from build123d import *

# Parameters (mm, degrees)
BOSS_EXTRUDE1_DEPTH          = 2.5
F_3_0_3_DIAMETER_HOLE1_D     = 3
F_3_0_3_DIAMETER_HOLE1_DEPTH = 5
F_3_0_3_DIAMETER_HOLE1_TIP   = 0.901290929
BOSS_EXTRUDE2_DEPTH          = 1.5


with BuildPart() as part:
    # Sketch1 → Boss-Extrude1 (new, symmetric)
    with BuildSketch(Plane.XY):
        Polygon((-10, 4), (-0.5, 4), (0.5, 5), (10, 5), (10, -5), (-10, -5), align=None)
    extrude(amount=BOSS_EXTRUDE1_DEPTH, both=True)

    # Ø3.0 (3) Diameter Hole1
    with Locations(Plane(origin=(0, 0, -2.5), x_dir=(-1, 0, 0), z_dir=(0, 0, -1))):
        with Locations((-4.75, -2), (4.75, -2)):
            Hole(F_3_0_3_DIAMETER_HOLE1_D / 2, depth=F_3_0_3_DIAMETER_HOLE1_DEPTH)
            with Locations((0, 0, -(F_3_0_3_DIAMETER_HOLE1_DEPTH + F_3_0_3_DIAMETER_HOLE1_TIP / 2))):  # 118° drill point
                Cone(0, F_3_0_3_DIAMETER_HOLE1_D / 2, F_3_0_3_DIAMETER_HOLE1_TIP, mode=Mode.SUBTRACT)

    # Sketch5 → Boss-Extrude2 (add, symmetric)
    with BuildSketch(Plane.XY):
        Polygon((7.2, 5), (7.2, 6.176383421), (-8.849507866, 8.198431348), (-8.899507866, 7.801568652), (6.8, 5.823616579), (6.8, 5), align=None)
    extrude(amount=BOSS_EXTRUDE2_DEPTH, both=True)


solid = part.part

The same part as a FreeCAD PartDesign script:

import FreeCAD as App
import Part
import Sketcher
Q = App.Units.Quantity


def add_polygon(sketch, points):
    """Adds a closed chain of lines whose ends are joined by coincident constraints."""
    first, n = sketch.GeometryCount, len(points)
    for a, b in zip(points, points[1:] + points[:1]):
        sketch.addGeometry(Part.LineSegment(App.Vector(*a, 0), App.Vector(*b, 0)), False)
    for i in range(n):
        sketch.addConstraint(Sketcher.Constraint("Coincident", first + i, 2, first + (i + 1) % n, 1))

doc = App.newDocument("Part")
params = doc.addObject("Spreadsheet::Sheet", "Params")
for row, (alias, value) in enumerate([
    ("sketch1_width", "20 mm"),
    ("sketch1_height", "9 mm"),
    ("sketch1_height2", "10 mm"),
    ("pad1_length", "5 mm"),
    ("sketch2_diameter", "3 mm"),
    ("hole_diameter", "3 mm"),
    ("hole_depth", "5 mm"),
    ("sketch3_width", "0.4 mm"),
    ("sketch3_length", "0.4 mm"),
    ("pad2_length", "3 mm"),
], start=1):
    params.set(f"A{row}", alias)
    params.set(f"B{row}", "=" + value)
    params.setAlias(f"B{row}", alias)

body = doc.addObject("PartDesign::Body", "Body")

# Sketch on XY plane
sketch1 = body.newObject("Sketcher::SketchObject", "Sketch")
sketch1.AttachmentSupport = (doc.getObject("XY_Plane"), [""])
sketch1.MapMode = "FlatFace"
add_polygon(sketch1, [(-0.5, 4), (-10, 4), (-10, -5), (10, -5), (10, 5), (0.5, 5)])  # lines 0-5
sketch1.addConstraint([
    Sketcher.Constraint("Horizontal", 0),
    Sketcher.Constraint("Vertical", 1),
    Sketcher.Constraint("Horizontal", 2),
    Sketcher.Constraint("Vertical", 3),
    Sketcher.Constraint("Horizontal", 4),
    Sketcher.Constraint("Symmetric", 1, 2, 3, 2, -1, 1),
    Sketcher.Constraint("Equal", 0, 4),
    Sketcher.Constraint("DistanceX", 2, 1, 2, 2, 20.0),
    Sketcher.Constraint("DistanceY", 1, 2, 1, 1, 9.0),
    Sketcher.Constraint("DistanceY", 3, 1, 3, 2, 10.0),
    Sketcher.Constraint("Angle", 5, Q("-135 deg")),
])
sketch1.setExpression("Constraints[13]", "Params.sketch1_width")
sketch1.setExpression("Constraints[14]", "Params.sketch1_height")
sketch1.setExpression("Constraints[15]", "Params.sketch1_height2")
pad1 = body.newObject("PartDesign::Pad", "Pad")
pad1.Profile = sketch1
pad1.setExpression("Length", "Params.pad1_length")
pad1.Midplane = True

# Sketch on XY plane
sketch2 = body.newObject("Sketcher::SketchObject", "Sketch001")
sketch2.AttachmentSupport = (doc.getObject("XY_Plane"), [""])
sketch2.MapMode = "FlatFace"
sketch2.AttachmentOffset = App.Placement(App.Vector(0, 0, -2.5), App.Rotation())
sketch2.addGeometry([
    Part.Circle(App.Vector(4.8, -2, 0), App.Vector(0, 0, 1), 1.5),
    Part.Circle(App.Vector(-4.8, -2, 0), App.Vector(0, 0, 1), 1.5),
], False)
sketch2.addConstraint([
    Sketcher.Constraint("Equal", 0, 1),
    Sketcher.Constraint("Symmetric", 0, 3, 1, 3, -2),
    Sketcher.Constraint("Diameter", 0, 3.0),
    Sketcher.Constraint("DistanceY", 0, 3, -1, 1, 2.0),
    Sketcher.Constraint("DistanceX", 1, 3, 0, 3, 9.5),
])
sketch2.setExpression("Constraints[2]", "Params.sketch2_diameter")
doc.recompute()
hole = body.newObject("PartDesign::Hole", "Hole")
hole.Profile = sketch2
hole.ThreadType = "None"
hole.setExpression("Diameter", "Params.hole_diameter")
hole.DepthType = "Dimension"
hole.setExpression("Depth", "Params.hole_depth")
hole.DrillPoint = "Angled"
hole.DrillPointAngle = 118
hole.Reversed = True

# Sketch on XY plane
sketch3 = body.newObject("Sketcher::SketchObject", "Sketch002")
sketch3.AttachmentSupport = (doc.getObject("XY_Plane"), [""])
sketch3.MapMode = "FlatFace"
add_polygon(sketch3, [(7.2, 5), (7.2, 6.18), (-8.85, 8.2), (-8.9, 7.8), (6.8, 5.82), (6.8, 5)])  # lines 0-5
sketch3.addConstraint([
    Sketcher.Constraint("Vertical", 0),
    Sketcher.Constraint("Vertical", 4),
    Sketcher.Constraint("Horizontal", 5),
    Sketcher.Constraint("Perpendicular", 1, 2),
    Sketcher.Constraint("Perpendicular", 2, 3),
    Sketcher.Constraint("DistanceX", 5, 1, 5, 2, 0.4),
    Sketcher.Constraint("DistanceY", -1, 1, 4, 2, 5.0),
    Sketcher.Constraint("Distance", 2, 0.4),
    Sketcher.Constraint("DistanceX", -1, 1, 0, 2, 7.2),
    Sketcher.Constraint("DistanceX", 2, 2, 1, 2, 0.05),
    Sketcher.Constraint("DistanceY", 0, 1, 0, 2, 1.176383),
    Sketcher.Constraint("DistanceY", -1, 1, 1, 2, 8.198431),
])
sketch3.setExpression("Constraints[11]", "Params.sketch3_width")
sketch3.setExpression("Constraints[13]", "Params.sketch3_length")
pad2 = body.newObject("PartDesign::Pad", "Pad001")
pad2.Profile = sketch3
pad2.setExpression("Length", "Params.pad2_length")
pad2.Midplane = True

doc.recompute()
